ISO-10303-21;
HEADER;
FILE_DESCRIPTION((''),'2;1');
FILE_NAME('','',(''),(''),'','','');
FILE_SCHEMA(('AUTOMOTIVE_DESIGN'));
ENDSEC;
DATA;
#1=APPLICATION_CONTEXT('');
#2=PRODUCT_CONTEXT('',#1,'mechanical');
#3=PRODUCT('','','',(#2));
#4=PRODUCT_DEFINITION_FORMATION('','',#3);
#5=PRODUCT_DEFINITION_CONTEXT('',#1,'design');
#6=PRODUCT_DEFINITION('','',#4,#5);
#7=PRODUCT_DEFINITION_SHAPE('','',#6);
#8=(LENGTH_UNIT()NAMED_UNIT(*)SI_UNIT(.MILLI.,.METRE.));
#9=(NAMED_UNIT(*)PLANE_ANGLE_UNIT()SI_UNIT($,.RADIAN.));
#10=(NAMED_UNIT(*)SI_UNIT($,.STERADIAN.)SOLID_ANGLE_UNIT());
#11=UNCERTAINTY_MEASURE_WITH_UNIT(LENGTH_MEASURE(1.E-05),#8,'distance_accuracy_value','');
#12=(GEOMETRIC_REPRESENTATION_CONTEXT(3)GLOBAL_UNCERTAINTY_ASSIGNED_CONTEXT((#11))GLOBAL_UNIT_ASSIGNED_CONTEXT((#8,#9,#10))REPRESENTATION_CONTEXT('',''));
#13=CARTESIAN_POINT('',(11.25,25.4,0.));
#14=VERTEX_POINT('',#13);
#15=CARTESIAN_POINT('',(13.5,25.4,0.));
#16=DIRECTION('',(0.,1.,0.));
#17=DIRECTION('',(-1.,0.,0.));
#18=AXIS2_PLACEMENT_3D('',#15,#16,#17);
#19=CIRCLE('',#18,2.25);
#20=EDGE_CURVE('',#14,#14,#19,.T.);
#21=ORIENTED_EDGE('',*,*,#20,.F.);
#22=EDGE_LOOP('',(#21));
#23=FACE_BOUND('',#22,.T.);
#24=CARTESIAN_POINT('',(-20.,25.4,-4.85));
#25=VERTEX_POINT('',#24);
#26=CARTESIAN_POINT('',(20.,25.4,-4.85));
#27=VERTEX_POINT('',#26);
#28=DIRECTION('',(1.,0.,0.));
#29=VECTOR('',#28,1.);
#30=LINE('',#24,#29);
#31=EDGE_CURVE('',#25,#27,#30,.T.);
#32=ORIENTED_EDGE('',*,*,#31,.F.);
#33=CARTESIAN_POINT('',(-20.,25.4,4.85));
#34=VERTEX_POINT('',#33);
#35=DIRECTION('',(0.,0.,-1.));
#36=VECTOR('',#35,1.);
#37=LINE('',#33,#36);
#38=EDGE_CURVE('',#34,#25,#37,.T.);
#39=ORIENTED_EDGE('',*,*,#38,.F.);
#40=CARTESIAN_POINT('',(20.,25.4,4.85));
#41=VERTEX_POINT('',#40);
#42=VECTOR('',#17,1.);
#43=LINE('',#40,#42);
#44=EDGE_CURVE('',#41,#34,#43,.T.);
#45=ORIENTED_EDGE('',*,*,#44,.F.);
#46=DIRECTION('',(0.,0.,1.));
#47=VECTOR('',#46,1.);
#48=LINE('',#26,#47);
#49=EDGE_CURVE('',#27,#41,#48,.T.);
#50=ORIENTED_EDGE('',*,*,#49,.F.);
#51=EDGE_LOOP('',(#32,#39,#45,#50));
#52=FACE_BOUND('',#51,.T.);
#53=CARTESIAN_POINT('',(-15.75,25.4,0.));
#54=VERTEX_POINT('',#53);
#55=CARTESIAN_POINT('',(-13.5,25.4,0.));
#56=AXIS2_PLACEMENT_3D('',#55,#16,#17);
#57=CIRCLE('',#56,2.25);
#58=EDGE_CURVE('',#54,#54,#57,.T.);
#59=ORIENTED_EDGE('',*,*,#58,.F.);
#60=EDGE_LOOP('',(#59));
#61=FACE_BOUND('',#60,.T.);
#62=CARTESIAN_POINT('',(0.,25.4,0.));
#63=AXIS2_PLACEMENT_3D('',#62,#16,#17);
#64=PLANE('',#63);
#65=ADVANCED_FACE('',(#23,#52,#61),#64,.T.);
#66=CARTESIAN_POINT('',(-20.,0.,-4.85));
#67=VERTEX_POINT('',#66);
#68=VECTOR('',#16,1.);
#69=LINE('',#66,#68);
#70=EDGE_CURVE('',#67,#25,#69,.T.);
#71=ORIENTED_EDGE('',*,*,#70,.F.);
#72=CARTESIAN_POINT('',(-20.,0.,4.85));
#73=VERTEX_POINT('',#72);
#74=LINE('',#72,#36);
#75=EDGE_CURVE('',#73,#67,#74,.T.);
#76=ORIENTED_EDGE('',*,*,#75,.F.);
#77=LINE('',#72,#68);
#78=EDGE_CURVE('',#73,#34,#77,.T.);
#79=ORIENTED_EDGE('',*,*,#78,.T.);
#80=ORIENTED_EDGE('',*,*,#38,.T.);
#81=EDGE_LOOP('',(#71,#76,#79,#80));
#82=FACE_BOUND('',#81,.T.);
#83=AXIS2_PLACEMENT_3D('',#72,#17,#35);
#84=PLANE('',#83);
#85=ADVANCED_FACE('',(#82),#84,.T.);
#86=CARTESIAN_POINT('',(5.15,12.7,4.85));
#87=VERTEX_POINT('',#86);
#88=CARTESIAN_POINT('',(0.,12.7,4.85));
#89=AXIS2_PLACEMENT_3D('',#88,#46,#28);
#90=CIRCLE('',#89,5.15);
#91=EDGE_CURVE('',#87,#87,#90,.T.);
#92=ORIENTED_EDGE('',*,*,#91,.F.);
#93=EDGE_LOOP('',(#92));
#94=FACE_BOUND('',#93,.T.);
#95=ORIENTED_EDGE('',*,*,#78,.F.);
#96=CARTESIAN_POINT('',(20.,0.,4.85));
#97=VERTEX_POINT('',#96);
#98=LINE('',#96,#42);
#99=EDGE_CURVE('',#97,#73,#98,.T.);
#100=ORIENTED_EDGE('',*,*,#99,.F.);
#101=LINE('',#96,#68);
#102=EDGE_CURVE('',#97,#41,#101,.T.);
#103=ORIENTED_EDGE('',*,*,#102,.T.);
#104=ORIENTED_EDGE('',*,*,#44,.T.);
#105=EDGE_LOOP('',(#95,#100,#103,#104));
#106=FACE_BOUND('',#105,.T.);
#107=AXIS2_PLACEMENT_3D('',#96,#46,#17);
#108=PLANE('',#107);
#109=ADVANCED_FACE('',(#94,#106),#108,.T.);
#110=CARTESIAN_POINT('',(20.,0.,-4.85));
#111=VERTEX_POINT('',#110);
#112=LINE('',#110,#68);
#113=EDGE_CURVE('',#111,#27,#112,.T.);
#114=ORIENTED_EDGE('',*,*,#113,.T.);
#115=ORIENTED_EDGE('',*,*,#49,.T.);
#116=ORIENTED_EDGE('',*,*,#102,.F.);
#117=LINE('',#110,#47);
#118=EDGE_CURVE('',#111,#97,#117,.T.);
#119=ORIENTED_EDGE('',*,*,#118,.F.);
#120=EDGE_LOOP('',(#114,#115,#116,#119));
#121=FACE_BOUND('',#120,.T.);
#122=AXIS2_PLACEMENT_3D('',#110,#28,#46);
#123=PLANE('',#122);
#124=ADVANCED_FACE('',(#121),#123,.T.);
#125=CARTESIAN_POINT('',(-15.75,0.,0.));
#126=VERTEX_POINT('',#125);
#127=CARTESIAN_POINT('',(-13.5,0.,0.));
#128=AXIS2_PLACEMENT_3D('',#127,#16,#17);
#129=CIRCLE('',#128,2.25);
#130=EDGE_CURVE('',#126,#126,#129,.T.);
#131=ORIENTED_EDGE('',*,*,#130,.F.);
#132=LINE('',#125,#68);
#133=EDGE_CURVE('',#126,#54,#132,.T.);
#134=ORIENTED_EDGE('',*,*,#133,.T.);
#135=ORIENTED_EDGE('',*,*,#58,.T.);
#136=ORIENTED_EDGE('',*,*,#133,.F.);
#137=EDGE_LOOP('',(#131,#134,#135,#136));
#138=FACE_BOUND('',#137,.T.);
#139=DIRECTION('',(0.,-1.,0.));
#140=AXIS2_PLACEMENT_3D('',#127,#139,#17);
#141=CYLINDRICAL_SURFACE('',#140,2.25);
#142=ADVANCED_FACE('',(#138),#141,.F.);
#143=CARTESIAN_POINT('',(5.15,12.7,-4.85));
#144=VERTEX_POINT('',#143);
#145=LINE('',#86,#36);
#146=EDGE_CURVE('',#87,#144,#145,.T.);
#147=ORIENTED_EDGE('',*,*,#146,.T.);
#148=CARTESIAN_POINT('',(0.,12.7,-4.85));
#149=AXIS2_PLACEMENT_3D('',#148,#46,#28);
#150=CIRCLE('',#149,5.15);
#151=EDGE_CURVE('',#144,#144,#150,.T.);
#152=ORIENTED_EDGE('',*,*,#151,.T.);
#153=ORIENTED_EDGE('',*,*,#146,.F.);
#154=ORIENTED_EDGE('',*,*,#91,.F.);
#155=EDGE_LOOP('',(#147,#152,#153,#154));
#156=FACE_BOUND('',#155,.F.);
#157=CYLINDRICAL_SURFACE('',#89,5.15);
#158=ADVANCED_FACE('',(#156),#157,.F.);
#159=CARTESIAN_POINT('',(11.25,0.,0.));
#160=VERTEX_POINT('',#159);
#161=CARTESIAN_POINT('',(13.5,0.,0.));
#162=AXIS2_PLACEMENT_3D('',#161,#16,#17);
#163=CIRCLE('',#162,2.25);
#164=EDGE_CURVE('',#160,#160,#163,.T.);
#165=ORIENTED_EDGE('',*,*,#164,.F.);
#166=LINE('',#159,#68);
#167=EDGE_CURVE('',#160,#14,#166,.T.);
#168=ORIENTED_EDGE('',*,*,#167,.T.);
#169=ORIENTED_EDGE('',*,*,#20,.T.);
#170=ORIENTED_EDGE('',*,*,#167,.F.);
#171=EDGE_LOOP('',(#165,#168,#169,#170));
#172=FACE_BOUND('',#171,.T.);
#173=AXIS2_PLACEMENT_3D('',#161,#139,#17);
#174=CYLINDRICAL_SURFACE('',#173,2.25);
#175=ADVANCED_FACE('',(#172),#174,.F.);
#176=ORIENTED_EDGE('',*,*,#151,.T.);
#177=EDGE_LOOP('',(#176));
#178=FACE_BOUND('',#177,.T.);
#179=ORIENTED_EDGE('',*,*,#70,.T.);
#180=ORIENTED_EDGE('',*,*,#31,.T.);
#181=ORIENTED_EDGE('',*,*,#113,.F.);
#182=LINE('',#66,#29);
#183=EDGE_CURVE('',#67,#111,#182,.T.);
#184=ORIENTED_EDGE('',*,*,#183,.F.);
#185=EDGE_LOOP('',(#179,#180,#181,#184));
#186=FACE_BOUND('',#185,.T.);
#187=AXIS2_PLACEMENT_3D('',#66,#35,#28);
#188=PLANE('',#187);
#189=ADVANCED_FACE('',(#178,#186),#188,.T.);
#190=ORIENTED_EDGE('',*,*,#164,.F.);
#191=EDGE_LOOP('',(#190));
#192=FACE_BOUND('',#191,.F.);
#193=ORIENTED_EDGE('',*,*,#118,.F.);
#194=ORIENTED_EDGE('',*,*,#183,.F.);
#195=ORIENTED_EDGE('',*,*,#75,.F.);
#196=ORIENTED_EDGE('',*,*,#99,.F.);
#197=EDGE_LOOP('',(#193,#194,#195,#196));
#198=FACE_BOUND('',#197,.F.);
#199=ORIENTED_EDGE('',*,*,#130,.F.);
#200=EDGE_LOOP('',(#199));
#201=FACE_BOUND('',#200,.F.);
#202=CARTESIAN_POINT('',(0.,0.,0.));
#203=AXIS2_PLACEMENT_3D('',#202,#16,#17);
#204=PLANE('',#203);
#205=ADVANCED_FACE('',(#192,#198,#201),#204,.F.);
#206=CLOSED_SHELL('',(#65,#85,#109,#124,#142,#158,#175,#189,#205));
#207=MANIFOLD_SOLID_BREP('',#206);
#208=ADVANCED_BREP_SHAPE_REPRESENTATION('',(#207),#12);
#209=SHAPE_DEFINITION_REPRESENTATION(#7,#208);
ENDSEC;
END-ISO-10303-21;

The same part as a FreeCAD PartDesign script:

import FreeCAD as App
import Part
import Sketcher
from FreeCAD import Vector


def add_polygon(sketch, points):
    """Adds a closed chain of lines whose ends are joined by coincident constraints."""
    first, n = sketch.GeometryCount, len(points)
    for a, b in zip(points, points[1:] + points[:1]):
        sketch.addGeometry(Part.LineSegment(App.Vector(*a, 0), App.Vector(*b, 0)), False)
    for i in range(n):
        sketch.addConstraint(Sketcher.Constraint("Coincident", first + i, 2, first + (i + 1) % n, 1))

doc = App.newDocument("Part")
body = doc.addObject("PartDesign::Body", "Body")

# Sketch on XZ plane
sketch1 = doc.addObject("Sketcher::SketchObject", "Sketch")
body.addObject(sketch1)
sketch1.AttachmentSupport = (doc.XZ_Plane, [""])
sketch1.MapMode = "FlatFace"
add_polygon(sketch1, [(20, -4.85), (-20, -4.85), (-20, 4.85), (20, 4.85)])  # lines 0-3
sketch1.addGeometry(Part.Circle(Vector(13.5, 0, 0), Vector(0, 0, 1), 2.25), False)  # 4
sketch1.addGeometry(Part.Circle(Vector(-13.5, 0, 0), Vector(0, 0, 1), 2.25), False)  # 5
sketch1.addConstraint([
    Sketcher.Constraint("Horizontal", 0),
    Sketcher.Constraint("Vertical", 1),
    Sketcher.Constraint("Horizontal", 2),
    Sketcher.Constraint("Vertical", 3),
    Sketcher.Constraint("Equal", 4, 5),
    Sketcher.Constraint("Symmetric", 4, 3, 5, 3, -1, 1),
    Sketcher.Constraint("Symmetric", 0, 2, 2, 2, -1, 1),
    Sketcher.Constraint("PointOnObject", 4, 3, -1),
    Sketcher.Constraint("Diameter", 4, 4.5),
    Sketcher.Constraint("DistanceX", 0, 2, 0, 1, 40.0),
    Sketcher.Constraint("DistanceY", 1, 1, 1, 2, 9.7),
    Sketcher.Constraint("DistanceX", 5, 3, 4, 3, 27.0),
])
pad1 = doc.addObject("PartDesign::Pad", "Pad")
body.addObject(pad1)
pad1.Profile = sketch1
pad1.Length = 25.4
pad1.Reversed = True

# Sketch on XY plane
sketch2 = doc.addObject("Sketcher::SketchObject", "Sketch001")
body.addObject(sketch2)
sketch2.AttachmentSupport = (doc.XY_Plane, [""])
sketch2.MapMode = "FlatFace"
sketch2.AttachmentOffset = App.Placement(Vector(0, 0, 4.85), App.Rotation())
sketch2.addGeometry(Part.Circle(Vector(0, 12.7, 0), Vector(0, 0, 1), 5.15), False)
sketch2.addConstraint([
    Sketcher.Constraint("PointOnObject", 0, 3, -2),
    Sketcher.Constraint("Diameter", 0, 10.3),
    Sketcher.Constraint("DistanceY", -1, 1, 0, 3, 12.7),
])
pocket1 = doc.addObject("PartDesign::Pocket", "Pocket")
body.addObject(pocket1)
pocket1.Profile = sketch2
pocket1.Type = "ThroughAll"

doc.recompute()
